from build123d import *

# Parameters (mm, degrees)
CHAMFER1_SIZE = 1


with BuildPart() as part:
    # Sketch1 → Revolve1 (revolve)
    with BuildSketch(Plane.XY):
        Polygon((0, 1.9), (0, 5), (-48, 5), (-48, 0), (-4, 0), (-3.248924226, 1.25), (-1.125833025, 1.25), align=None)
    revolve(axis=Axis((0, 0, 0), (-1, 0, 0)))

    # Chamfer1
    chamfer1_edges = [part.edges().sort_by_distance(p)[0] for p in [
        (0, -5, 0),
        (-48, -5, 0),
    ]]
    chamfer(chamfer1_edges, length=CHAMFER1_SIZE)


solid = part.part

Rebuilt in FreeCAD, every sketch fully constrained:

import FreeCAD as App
import Part
import Sketcher
Q = App.Units.Quantity


def edges_at(feature, points):
    """Names of the edges that pass closest to the given points."""
    edges = feature.Shape.Edges
    near = lambda p: min(range(len(edges)), key=lambda i: edges[i].distToShape(Part.Vertex(*p))[0])
    return sorted({f"Edge{near(p) + 1}" for p in points})

doc = App.newDocument("Part")
body = doc.addObject("PartDesign::Body", "Body")

sketch1 = doc.addObject("Sketcher::SketchObject", "Sketch")
body.addObject(sketch1)
sketch1.AttachmentSupport = (doc.XY_Plane, [""])
sketch1.MapMode = "FlatFace"
sketch1.addGeometry([
    Part.LineSegment(App.Vector(0, 1.9, 0), App.Vector(0, 5, 0)),
    Part.LineSegment(App.Vector(0, 5, 0), App.Vector(-48, 5, 0)),
    Part.LineSegment(App.Vector(-48, 5, 0), App.Vector(-48, 0, 0)),
    Part.LineSegment(App.Vector(-48, 0, 0), App.Vector(-4, 0, 0)),
    Part.LineSegment(App.Vector(-4, 0, 0), App.Vector(-3.2, 1.2, 0)),
    Part.LineSegment(App.Vector(-3.2, 1.2, 0), App.Vector(-1.1, 1.2, 0)),
    Part.LineSegment(App.Vector(-1.1, 1.2, 0), App.Vector(0, 1.9, 0)),
], False)
sketch1.addConstraint([
    Sketcher.Constraint("Coincident", 0, 2, 1, 1),
    Sketcher.Constraint("Coincident", 1, 2, 2, 1),
    Sketcher.Constraint("Coincident", 2, 2, 3, 1),
    Sketcher.Constraint("Coincident", 3, 2, 4, 1),
    Sketcher.Constraint("Coincident", 4, 2, 5, 1),
    Sketcher.Constraint("Coincident", 5, 2, 6, 1),
    Sketcher.Constraint("Coincident", 6, 2, 0, 1),
    Sketcher.Constraint("Vertical", 0),
    Sketcher.Constraint("Horizontal", 1),
    Sketcher.Constraint("Vertical", 2),
    Sketcher.Constraint("Horizontal", 3),
    Sketcher.Constraint("Horizontal", 5),
    Sketcher.Constraint("PointOnObject", 0, 2, -2),
    Sketcher.Constraint("PointOnObject", 2, 2, -1),
    Sketcher.Constraint("DistanceX", 1, 2, 1, 1, Q("48 mm")),
    Sketcher.Constraint("DistanceX", 3, 1, 3, 2, Q("44 mm")),
    Sketcher.Constraint("DistanceY", 2, 2, 2, 1, Q("5 mm")),
    Sketcher.Constraint("Angle", 4, Q("59 deg")),
    Sketcher.Constraint("Angle", 6, Q("30 deg")),
    Sketcher.Constraint("DistanceY", 0, 1, 0, 2, Q("3.1 mm")),
    Sketcher.Constraint("Distance", 6, Q("1.3 mm")),
])
revolution = doc.addObject("PartDesign::Revolution", "Revolution")
body.addObject(revolution)
revolution.Profile = sketch1
revolution.ReferenceAxis = (sketch1, ["H_Axis"])
revolution.Angle = 360
doc.recompute()

chamfer = doc.addObject("PartDesign::Chamfer", "Chamfer")
body.addObject(chamfer)
chamfer.Base = (revolution, edges_at(revolution, [(0, -5, 0), (-48, -5, 0)]))
chamfer.Size = 1

doc.recompute()
